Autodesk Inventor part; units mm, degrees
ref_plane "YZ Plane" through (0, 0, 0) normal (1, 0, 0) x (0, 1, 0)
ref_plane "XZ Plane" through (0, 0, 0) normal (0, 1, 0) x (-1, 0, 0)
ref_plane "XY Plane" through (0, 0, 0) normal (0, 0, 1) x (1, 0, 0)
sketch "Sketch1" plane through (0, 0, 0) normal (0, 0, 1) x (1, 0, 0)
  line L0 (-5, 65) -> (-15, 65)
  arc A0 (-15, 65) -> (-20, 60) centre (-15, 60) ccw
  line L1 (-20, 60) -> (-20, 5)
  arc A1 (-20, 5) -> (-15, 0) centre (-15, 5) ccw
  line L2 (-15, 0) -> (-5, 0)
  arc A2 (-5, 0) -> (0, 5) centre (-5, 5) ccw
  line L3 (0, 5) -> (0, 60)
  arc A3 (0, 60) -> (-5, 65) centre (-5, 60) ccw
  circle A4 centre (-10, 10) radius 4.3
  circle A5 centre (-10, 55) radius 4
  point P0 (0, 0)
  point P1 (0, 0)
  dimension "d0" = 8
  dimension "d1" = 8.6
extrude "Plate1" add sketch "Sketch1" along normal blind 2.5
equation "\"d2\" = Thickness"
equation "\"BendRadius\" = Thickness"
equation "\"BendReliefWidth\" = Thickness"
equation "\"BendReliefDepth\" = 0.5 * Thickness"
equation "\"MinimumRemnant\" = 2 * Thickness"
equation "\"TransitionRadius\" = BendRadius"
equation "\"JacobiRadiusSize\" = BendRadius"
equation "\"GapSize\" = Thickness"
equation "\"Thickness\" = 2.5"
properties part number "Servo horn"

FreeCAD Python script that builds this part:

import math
import FreeCAD as App
import Part
import Sketcher

V = App.Vector

doc = App.newDocument("Part")
params = doc.addObject("Spreadsheet::Sheet", "Params")
for row, (alias, value) in enumerate([
    ("sketch1_diameter", "8 mm"),
    ("sketch1_diameter2", "8.6 mm"),
    ("sketch1_radius", "5 mm"),
    ("sketch1_width", "10 mm"),
    ("sketch1_height", "55 mm"),
    ("pad1_length", "2.5 mm"),
], start=1):
    params.set(f"A{row}", alias)
    params.set(f"B{row}", "=" + value)
    params.setAlias(f"B{row}", alias)

body = doc.addObject("PartDesign::Body", "Body")

sketch1 = body.newObject("Sketcher::SketchObject", "Sketch")
sketch1.AttachmentSupport = (doc.getObject("XY_Plane"), [""])
sketch1.MapMode = "FlatFace"
sketch1.addGeometry(Part.ArcOfCircle(Part.Circle(V(-5, 60, 0), V(0, 0, 1), 5), math.radians(0), math.radians(90)), False)
sketch1.addGeometry(Part.LineSegment(V(-5, 65, 0), V(-15, 65, 0)), False)
sketch1.addGeometry(Part.ArcOfCircle(Part.Circle(V(-15, 60, 0), V(0, 0, 1), 5), math.radians(90), math.radians(180)), False)
sketch1.addGeometry(Part.LineSegment(V(-20, 60, 0), V(-20, 5, 0)), False)
sketch1.addGeometry(Part.ArcOfCircle(Part.Circle(V(-15, 5, 0), V(0, 0, 1), 5), math.radians(180), math.radians(270)), False)
sketch1.addGeometry(Part.LineSegment(V(-15, 0, 0), V(-5, 0, 0)), False)
sketch1.addGeometry(Part.ArcOfCircle(Part.Circle(V(-5, 5, 0), V(0, 0, 1), 5), math.radians(-90), math.radians(0)), False)
sketch1.addGeometry(Part.LineSegment(V(0, 5, 0), V(0, 60, 0)), False)
sketch1.addGeometry(Part.Circle(V(-10, 10, 0), V(0, 0, 1), 4.3), False)
sketch1.addGeometry(Part.Circle(V(-10, 55, 0), V(0, 0, 1), 4), False)
sketch1.addConstraint(Sketcher.Constraint("Tangent", 0, 2, 1, 1))
sketch1.addConstraint(Sketcher.Constraint("Tangent", 1, 2, 2, 1))
sketch1.addConstraint(Sketcher.Constraint("Tangent", 2, 2, 3, 1))
sketch1.addConstraint(Sketcher.Constraint("Tangent", 3, 2, 4, 1))
sketch1.addConstraint(Sketcher.Constraint("Tangent", 4, 2, 5, 1))
sketch1.addConstraint(Sketcher.Constraint("Tangent", 5, 2, 6, 1))
sketch1.addConstraint(Sketcher.Constraint("Tangent", 6, 2, 7, 1))
sketch1.addConstraint(Sketcher.Constraint("Tangent", 7, 2, 0, 1))
sketch1.addConstraint(Sketcher.Constraint("Horizontal", 1))
sketch1.addConstraint(Sketcher.Constraint("Vertical", 3))
sketch1.addConstraint(Sketcher.Constraint("Horizontal", 5))
sketch1.addConstraint(Sketcher.Constraint("Vertical", 7))
sketch1.addConstraint(Sketcher.Constraint("Equal", 0, 2))
sketch1.addConstraint(Sketcher.Constraint("Equal", 2, 4))
sketch1.addConstraint(Sketcher.Constraint("Equal", 4, 6))
sketch1.addConstraint(Sketcher.Constraint("PointOnObject", 4, 2, -1))
sketch1.addConstraint(Sketcher.Constraint("PointOnObject", 6, 2, -2))
sketch1.addConstraint(Sketcher.Constraint("Vertical", 8, 3, 9, 3))
sketch1.addConstraint(Sketcher.Constraint("Diameter", 9, 8.0))
sketch1.addConstraint(Sketcher.Constraint("Diameter", 8, 8.6))
sketch1.addConstraint(Sketcher.Constraint("Radius", 0, 5.0))
sketch1.addConstraint(Sketcher.Constraint("DistanceX", 1, 2, 1, 1, 10.0))
sketch1.addConstraint(Sketcher.Constraint("DistanceY", 3, 2, 3, 1, 55.0))
sketch1.addConstraint(Sketcher.Constraint("DistanceX", 8, 3, -1, 1, 10.0))
sketch1.addConstraint(Sketcher.Constraint("DistanceY", -1, 1, 8, 3, 10.0))
sketch1.addConstraint(Sketcher.Constraint("DistanceY", -1, 1, 9, 3, 55.0))
sketch1.setExpression("Constraints[18]", "Params.sketch1_diameter")
sketch1.setExpression("Constraints[19]", "Params.sketch1_diameter2")
sketch1.setExpression("Constraints[20]", "Params.sketch1_radius")
sketch1.setExpression("Constraints[21]", "Params.sketch1_width")
sketch1.setExpression("Constraints[22]", "Params.sketch1_height")
pad1 = body.newObject("PartDesign::Pad", "Pad")
pad1.Profile = sketch1
pad1.setExpression("Length", "Params.pad1_length")

doc.recompute()
